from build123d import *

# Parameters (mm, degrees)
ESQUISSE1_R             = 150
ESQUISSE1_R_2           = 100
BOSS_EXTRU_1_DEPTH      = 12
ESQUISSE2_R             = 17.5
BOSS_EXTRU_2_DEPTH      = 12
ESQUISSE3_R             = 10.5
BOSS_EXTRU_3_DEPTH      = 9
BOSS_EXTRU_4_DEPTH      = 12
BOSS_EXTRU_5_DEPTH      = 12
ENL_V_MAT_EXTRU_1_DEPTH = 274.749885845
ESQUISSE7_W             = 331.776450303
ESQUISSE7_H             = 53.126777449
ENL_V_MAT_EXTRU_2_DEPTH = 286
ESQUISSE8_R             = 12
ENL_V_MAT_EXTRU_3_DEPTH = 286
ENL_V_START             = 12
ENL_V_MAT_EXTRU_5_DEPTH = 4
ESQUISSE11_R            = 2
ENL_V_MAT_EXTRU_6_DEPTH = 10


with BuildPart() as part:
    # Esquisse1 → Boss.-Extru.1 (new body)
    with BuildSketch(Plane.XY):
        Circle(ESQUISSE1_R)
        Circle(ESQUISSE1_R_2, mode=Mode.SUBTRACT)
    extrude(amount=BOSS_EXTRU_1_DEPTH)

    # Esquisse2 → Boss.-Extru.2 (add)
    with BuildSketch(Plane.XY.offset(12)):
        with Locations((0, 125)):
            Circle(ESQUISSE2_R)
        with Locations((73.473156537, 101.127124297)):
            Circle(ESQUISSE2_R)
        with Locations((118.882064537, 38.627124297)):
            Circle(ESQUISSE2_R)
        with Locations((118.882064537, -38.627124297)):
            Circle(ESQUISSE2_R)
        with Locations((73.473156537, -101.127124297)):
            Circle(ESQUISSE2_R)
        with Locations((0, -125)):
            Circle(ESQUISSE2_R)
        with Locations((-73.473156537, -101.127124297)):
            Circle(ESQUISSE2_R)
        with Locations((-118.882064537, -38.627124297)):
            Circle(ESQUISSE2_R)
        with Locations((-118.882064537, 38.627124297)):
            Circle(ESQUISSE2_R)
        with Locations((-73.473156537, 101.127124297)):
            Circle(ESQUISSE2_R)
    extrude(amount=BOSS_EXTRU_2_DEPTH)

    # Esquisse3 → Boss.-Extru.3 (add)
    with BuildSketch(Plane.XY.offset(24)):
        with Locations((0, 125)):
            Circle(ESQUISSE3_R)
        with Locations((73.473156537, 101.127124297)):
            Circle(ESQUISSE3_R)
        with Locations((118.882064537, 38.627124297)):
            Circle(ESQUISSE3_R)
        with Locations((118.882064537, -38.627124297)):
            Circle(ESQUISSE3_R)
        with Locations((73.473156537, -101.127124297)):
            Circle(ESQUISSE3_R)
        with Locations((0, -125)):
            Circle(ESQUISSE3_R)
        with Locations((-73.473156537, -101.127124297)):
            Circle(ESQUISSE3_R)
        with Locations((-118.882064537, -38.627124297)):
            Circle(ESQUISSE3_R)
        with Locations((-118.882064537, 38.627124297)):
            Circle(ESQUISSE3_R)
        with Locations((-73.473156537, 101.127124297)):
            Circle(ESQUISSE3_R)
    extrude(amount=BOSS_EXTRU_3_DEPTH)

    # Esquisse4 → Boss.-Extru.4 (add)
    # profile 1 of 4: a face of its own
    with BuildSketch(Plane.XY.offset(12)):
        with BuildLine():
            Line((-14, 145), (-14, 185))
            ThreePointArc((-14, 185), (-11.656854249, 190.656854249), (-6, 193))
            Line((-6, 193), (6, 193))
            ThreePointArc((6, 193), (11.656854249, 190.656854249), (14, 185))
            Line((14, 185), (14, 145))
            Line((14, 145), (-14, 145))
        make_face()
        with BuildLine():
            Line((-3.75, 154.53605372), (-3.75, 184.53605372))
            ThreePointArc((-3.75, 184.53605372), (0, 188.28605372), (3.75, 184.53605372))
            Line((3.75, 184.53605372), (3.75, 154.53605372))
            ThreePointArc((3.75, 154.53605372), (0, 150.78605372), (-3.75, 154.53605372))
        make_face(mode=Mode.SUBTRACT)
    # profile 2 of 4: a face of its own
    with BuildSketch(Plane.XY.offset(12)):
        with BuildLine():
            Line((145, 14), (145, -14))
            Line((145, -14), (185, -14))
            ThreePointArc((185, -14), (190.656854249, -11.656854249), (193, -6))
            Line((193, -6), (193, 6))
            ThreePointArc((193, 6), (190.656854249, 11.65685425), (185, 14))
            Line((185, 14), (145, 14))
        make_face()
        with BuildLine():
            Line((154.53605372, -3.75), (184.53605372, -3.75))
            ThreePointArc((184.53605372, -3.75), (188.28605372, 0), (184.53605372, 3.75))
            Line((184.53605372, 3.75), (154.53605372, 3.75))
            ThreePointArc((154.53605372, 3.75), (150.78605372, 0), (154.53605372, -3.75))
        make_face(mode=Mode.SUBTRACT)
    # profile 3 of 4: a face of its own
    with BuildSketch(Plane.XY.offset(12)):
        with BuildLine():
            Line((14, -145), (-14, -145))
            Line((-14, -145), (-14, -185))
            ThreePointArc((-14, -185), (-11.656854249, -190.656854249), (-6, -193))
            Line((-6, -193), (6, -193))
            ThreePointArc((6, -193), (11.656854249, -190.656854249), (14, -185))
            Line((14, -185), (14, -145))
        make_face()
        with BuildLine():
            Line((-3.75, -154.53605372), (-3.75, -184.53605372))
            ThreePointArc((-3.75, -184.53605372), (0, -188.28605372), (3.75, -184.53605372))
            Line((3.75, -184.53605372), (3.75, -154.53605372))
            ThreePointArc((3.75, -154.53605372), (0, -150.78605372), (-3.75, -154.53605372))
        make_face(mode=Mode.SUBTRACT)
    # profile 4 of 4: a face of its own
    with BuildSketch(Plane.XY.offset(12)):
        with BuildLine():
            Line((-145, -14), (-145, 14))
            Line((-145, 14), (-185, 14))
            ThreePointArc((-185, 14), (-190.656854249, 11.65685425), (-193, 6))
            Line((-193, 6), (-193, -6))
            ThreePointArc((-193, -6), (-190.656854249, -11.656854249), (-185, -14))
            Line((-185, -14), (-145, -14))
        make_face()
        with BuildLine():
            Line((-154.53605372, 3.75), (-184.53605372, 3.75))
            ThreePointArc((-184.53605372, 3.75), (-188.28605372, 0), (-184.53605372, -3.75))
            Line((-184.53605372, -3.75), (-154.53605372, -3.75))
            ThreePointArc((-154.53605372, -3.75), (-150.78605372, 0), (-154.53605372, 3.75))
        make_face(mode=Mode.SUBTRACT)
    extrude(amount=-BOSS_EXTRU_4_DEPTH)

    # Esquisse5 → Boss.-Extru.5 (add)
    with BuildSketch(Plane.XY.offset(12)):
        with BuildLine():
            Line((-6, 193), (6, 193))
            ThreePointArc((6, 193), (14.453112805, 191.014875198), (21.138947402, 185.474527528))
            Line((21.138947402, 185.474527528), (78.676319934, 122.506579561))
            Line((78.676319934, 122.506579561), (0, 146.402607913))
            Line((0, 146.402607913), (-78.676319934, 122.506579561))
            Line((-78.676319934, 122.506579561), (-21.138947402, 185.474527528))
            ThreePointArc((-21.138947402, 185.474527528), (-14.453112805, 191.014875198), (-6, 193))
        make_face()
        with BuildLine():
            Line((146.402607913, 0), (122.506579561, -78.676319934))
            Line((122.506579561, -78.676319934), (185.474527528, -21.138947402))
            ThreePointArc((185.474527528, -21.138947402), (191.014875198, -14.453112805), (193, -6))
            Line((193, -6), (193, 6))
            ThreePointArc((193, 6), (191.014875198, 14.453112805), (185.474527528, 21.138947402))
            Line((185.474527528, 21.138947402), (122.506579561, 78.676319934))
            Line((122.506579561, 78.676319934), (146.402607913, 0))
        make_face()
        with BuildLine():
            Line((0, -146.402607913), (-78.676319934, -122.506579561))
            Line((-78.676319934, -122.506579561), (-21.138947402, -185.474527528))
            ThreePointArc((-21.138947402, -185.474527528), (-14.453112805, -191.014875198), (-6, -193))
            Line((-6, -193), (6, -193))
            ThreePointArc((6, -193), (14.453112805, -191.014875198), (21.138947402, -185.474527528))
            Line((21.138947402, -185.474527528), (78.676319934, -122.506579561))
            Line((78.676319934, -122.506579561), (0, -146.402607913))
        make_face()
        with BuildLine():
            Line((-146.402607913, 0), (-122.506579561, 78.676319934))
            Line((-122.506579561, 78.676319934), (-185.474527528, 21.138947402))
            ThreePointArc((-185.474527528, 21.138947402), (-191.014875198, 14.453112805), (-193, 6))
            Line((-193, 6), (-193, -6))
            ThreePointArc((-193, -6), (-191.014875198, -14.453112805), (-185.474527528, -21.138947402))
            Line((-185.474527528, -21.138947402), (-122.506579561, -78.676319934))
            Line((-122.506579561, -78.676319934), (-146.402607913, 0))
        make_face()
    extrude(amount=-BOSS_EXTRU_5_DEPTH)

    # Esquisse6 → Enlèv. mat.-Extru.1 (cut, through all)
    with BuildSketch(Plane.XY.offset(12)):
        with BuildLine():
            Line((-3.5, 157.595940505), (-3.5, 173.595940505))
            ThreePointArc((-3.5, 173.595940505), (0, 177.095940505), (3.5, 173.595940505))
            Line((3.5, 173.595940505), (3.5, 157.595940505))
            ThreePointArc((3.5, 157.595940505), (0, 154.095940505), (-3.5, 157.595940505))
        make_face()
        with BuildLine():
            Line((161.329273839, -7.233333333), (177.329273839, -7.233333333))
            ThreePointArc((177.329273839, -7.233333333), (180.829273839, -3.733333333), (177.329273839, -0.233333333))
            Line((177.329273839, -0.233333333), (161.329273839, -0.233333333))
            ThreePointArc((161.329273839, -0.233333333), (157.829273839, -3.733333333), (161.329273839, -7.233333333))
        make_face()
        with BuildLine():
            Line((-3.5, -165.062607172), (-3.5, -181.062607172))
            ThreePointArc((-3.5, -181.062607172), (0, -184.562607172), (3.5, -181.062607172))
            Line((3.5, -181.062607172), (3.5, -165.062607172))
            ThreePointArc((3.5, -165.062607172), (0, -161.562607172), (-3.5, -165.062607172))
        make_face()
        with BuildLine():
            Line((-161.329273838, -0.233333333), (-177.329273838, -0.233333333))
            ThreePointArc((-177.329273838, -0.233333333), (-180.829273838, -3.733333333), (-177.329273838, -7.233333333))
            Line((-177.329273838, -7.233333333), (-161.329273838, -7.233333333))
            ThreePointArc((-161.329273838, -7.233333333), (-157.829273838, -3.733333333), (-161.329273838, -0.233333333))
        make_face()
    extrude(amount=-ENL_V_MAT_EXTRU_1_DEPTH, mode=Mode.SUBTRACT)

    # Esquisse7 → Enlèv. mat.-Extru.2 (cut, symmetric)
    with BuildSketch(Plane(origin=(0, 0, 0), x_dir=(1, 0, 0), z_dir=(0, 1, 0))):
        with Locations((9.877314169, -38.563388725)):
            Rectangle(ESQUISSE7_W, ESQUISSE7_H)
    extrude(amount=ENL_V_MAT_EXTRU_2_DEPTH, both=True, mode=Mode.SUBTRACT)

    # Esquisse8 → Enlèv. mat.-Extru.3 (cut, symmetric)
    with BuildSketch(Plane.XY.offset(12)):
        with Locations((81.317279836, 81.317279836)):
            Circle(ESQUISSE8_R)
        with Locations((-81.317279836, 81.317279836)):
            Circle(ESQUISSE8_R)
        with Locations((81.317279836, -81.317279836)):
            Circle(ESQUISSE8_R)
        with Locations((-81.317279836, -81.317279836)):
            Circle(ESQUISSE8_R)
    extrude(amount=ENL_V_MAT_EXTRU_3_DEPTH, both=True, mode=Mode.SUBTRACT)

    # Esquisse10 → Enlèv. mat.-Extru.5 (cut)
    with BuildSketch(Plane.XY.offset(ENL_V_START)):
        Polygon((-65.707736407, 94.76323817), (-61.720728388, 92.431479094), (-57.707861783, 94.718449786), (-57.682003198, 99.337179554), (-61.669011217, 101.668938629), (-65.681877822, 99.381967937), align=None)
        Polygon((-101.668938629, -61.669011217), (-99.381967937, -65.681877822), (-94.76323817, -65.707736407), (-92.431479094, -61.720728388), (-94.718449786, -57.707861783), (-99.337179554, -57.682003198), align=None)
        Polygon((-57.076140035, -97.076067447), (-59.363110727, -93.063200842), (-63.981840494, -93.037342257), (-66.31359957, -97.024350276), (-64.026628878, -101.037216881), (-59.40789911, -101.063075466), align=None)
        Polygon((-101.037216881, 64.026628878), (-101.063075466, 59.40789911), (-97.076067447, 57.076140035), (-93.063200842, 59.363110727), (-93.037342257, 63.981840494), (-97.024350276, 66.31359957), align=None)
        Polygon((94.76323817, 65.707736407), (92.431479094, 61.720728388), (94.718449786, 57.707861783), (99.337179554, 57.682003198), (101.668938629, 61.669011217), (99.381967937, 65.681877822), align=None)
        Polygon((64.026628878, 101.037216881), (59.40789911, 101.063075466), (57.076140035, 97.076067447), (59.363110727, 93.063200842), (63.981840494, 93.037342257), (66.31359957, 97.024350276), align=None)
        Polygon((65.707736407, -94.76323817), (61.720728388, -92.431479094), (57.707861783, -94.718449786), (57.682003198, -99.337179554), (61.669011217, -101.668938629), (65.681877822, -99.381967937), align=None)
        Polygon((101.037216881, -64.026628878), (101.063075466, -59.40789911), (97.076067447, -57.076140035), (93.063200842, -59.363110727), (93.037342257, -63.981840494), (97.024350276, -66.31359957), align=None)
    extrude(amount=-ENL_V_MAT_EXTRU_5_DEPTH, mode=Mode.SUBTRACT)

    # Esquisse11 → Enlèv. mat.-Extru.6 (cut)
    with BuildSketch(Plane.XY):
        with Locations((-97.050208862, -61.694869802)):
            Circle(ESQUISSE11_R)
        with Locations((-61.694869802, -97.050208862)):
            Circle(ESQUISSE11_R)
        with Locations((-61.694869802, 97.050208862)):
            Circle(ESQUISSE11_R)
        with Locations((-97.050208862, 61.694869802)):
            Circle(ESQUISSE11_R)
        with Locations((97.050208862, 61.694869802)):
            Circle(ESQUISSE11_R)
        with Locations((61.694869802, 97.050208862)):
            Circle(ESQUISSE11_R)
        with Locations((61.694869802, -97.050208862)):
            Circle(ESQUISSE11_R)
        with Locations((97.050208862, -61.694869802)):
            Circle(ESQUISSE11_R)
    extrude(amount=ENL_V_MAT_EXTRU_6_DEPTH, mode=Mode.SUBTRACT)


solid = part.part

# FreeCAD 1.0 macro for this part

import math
import FreeCAD as App
import Part
import Sketcher
from FreeCAD import Vector
Q = App.Units.Quantity

doc = App.newDocument("Part")
body = doc.addObject("PartDesign::Body", "Body")

# Sketch on XY plane
sketch1 = body.newObject("Sketcher::SketchObject", "Sketch")
sketch1.AttachmentSupport = (doc.getObject("XY_Plane"), [""])
sketch1.MapMode = "FlatFace"
sketch1.addGeometry([
    Part.Circle(Vector(0, 0, 0), Vector(0, 0, 1), 150),
    Part.Circle(Vector(0, 0, 0), Vector(0, 0, 1), 100),
], False)
sketch1.addConstraint([
    Sketcher.Constraint("Coincident", 0, 3, -1, 1),
    Sketcher.Constraint("Coincident", 1, 3, -1, 1),
    Sketcher.Constraint("Diameter", 0, Q("300 mm")),
    Sketcher.Constraint("Diameter", 1, Q("200 mm")),
])
pad1 = body.newObject("PartDesign::Pad", "Pad")
pad1.Profile = sketch1
pad1.Length = 12

# Sketch on XY plane
sketch2 = body.newObject("Sketcher::SketchObject", "Sketch001")
sketch2.AttachmentSupport = (doc.getObject("XY_Plane"), [""])
sketch2.MapMode = "FlatFace"
sketch2.AttachmentOffset = App.Placement(Vector(0, 0, 12), App.Rotation())
sketch2.addGeometry([
    Part.Circle(Vector(0, 125, 0), Vector(0, 0, 1), 17.5),  # 0
    Part.Circle(Vector(73.473157, 101.127124, 0), Vector(0, 0, 1), 17.5),  # 1
    Part.Circle(Vector(118.882065, 38.627124, 0), Vector(0, 0, 1), 17.5),  # 2
    Part.Circle(Vector(118.882065, -38.627124, 0), Vector(0, 0, 1), 17.5),  # 3
    Part.Circle(Vector(73.473157, -101.127124, 0), Vector(0, 0, 1), 17.5),  # 4
    Part.Circle(Vector(0, -125, 0), Vector(0, 0, 1), 17.5),  # 5
    Part.Circle(Vector(-73.473157, -101.127124, 0), Vector(0, 0, 1), 17.5),  # 6
    Part.Circle(Vector(-118.882065, -38.627124, 0), Vector(0, 0, 1), 17.5),  # 7
    Part.Circle(Vector(-118.882065, 38.627124, 0), Vector(0, 0, 1), 17.5),  # 8
    Part.Circle(Vector(-73.473157, 101.127124, 0), Vector(0, 0, 1), 17.5),  # 9
], False)
sketch2.addConstraint([
    Sketcher.Constraint("Equal", 0, 1),
    Sketcher.Constraint("Equal", 1, 2),
    Sketcher.Constraint("Equal", 2, 3),
    Sketcher.Constraint("Equal", 3, 4),
    Sketcher.Constraint("Equal", 4, 5),
    Sketcher.Constraint("Equal", 5, 6),
    Sketcher.Constraint("Equal", 6, 7),
    Sketcher.Constraint("Equal", 7, 8),
    Sketcher.Constraint("Equal", 8, 9),
    Sketcher.Constraint("Symmetric", 0, 3, 5, 3, -1, 1),
    Sketcher.Constraint("Symmetric", 1, 3, 6, 3, -1, 1),
    Sketcher.Constraint("Symmetric", 2, 3, 7, 3, -1, 1),
    Sketcher.Constraint("Symmetric", 3, 3, 8, 3, -1, 1),
    Sketcher.Constraint("Symmetric", 4, 3, 9, 3, -1, 1),
    Sketcher.Constraint("Symmetric", 4, 3, 6, 3, -2),
    Sketcher.Constraint("Symmetric", 3, 3, 7, 3, -2),
    Sketcher.Constraint("PointOnObject", 0, 3, -2),
    Sketcher.Constraint("Diameter", 0, Q("35 mm")),
    Sketcher.Constraint("DistanceY", -1, 1, 0, 3, Q("125 mm")),
    Sketcher.Constraint("DistanceY", 2, 3, 1, 3, Q("62.5 mm")),
    Sketcher.Constraint("DistanceX", 1, 3, 2, 3, Q("45.408908 mm")),
    Sketcher.Constraint("DistanceY", 3, 3, 2, 3, Q("77.254249 mm")),
    Sketcher.Constraint("DistanceX", 6, 3, 3, 3, Q("192.355221 mm")),
])
pad2 = body.newObject("PartDesign::Pad", "Pad001")
pad2.Profile = sketch2
pad2.Length = 12

# Sketch on XY plane
sketch3 = body.newObject("Sketcher::SketchObject", "Sketch002")
sketch3.AttachmentSupport = (doc.getObject("XY_Plane"), [""])
sketch3.MapMode = "FlatFace"
sketch3.AttachmentOffset = App.Placement(Vector(0, 0, 24), App.Rotation())
sketch3.addGeometry([
    Part.Circle(Vector(0, 125, 0), Vector(0, 0, 1), 10.5),  # 0
    Part.Circle(Vector(73.473157, 101.127124, 0), Vector(0, 0, 1), 10.5),  # 1
    Part.Circle(Vector(118.882065, 38.627124, 0), Vector(0, 0, 1), 10.5),  # 2
    Part.Circle(Vector(118.882065, -38.627124, 0), Vector(0, 0, 1), 10.5),  # 3
    Part.Circle(Vector(73.473157, -101.127124, 0), Vector(0, 0, 1), 10.5),  # 4
    Part.Circle(Vector(0, -125, 0), Vector(0, 0, 1), 10.5),  # 5
    Part.Circle(Vector(-73.473157, -101.127124, 0), Vector(0, 0, 1), 10.5),  # 6
    Part.Circle(Vector(-118.882065, -38.627124, 0), Vector(0, 0, 1), 10.5),  # 7
    Part.Circle(Vector(-118.882065, 38.627124, 0), Vector(0, 0, 1), 10.5),  # 8
    Part.Circle(Vector(-73.473157, 101.127124, 0), Vector(0, 0, 1), 10.5),  # 9
], False)
sketch3.addConstraint([
    Sketcher.Constraint("Equal", 0, 1),
    Sketcher.Constraint("Equal", 1, 2),
    Sketcher.Constraint("Equal", 2, 3),
    Sketcher.Constraint("Equal", 3, 4),
    Sketcher.Constraint("Equal", 4, 5),
    Sketcher.Constraint("Equal", 5, 6),
    Sketcher.Constraint("Equal", 6, 7),
    Sketcher.Constraint("Equal", 7, 8),
    Sketcher.Constraint("Equal", 8, 9),
    Sketcher.Constraint("Symmetric", 0, 3, 5, 3, -1, 1),
    Sketcher.Constraint("Symmetric", 1, 3, 6, 3, -1, 1),
    Sketcher.Constraint("Symmetric", 2, 3, 7, 3, -1, 1),
    Sketcher.Constraint("Symmetric", 3, 3, 8, 3, -1, 1),
    Sketcher.Constraint("Symmetric", 4, 3, 9, 3, -1, 1),
    Sketcher.Constraint("Symmetric", 4, 3, 6, 3, -2),
    Sketcher.Constraint("Symmetric", 3, 3, 7, 3, -2),
    Sketcher.Constraint("PointOnObject", 0, 3, -2),
    Sketcher.Constraint("Diameter", 0, Q("21 mm")),
    Sketcher.Constraint("DistanceY", -1, 1, 0, 3, Q("125 mm")),
    Sketcher.Constraint("DistanceY", 2, 3, 1, 3, Q("62.5 mm")),
    Sketcher.Constraint("DistanceX", 1, 3, 2, 3, Q("45.408908 mm")),
    Sketcher.Constraint("DistanceY", 3, 3, 2, 3, Q("77.254249 mm")),
    Sketcher.Constraint("DistanceX", 6, 3, 3, 3, Q("192.355221 mm")),
])
pad3 = body.newObject("PartDesign::Pad", "Pad002")
pad3.Profile = sketch3
pad3.Length = 9

# Sketch on XY plane
sketch4 = body.newObject("Sketcher::SketchObject", "Sketch003")
sketch4.AttachmentSupport = (doc.getObject("XY_Plane"), [""])
sketch4.MapMode = "FlatFace"
sketch4.AttachmentOffset = App.Placement(Vector(0, 0, 12), App.Rotation())
sketch4.addGeometry([
    Part.LineSegment(Vector(-14, 185, 0), Vector(-14, 145, 0)),  # 0
    Part.LineSegment(Vector(-14, 145, 0), Vector(14, 145, 0)),  # 1
    Part.LineSegment(Vector(14, 145, 0), Vector(14, 185, 0)),  # 2
    Part.ArcOfCircle(Part.Circle(Vector(6, 185, 0), Vector(0, 0, 1), 8), math.radians(0), math.radians(90)),  # 3
    Part.LineSegment(Vector(6, 193, 0), Vector(-6, 193, 0)),  # 4
    Part.ArcOfCircle(Part.Circle(Vector(-6, 185, 0), Vector(0, 0, 1), 8), math.radians(90), math.radians(180)),  # 5
    Part.LineSegment(Vector(-3.75, 154.536054, 0), Vector(-3.75, 184.536054, 0)),  # 6
    Part.ArcOfCircle(Part.Circle(Vector(0, 184.536054, 0), Vector(0, 0, 1), 3.75), math.radians(0), math.radians(180)),  # 7
    Part.LineSegment(Vector(3.75, 184.536054, 0), Vector(3.75, 154.536054, 0)),  # 8
    Part.ArcOfCircle(Part.Circle(Vector(0, 154.536054, 0), Vector(0, 0, 1), 3.75), math.radians(180), math.radians(360)),  # 9
    Part.LineSegment(Vector(145, 14, 0), Vector(145, -14, 0)),  # 10
    Part.LineSegment(Vector(145, -14, 0), Vector(185, -14, 0)),  # 11
    Part.ArcOfCircle(Part.Circle(Vector(185, -6, 0), Vector(0, 0, 1), 8), math.radians(-90), math.radians(0)),  # 12
    Part.LineSegment(Vector(193, -6, 0), Vector(193, 6, 0)),  # 13
    Part.ArcOfCircle(Part.Circle(Vector(185, 6, 0), Vector(0, 0, 1), 8), math.radians(0), math.radians(90)),  # 14
    Part.LineSegment(Vector(185, 14, 0), Vector(145, 14, 0)),  # 15
    Part.LineSegment(Vector(184.536054, -3.75, 0), Vector(154.536054, -3.75, 0)),  # 16
    Part.ArcOfCircle(Part.Circle(Vector(154.536054, 0, 0), Vector(0, 0, 1), 3.75), math.radians(90), math.radians(270)),  # 17
    Part.LineSegment(Vector(154.536054, 3.75, 0), Vector(184.536054, 3.75, 0)),  # 18
    Part.ArcOfCircle(Part.Circle(Vector(184.536054, 0, 0), Vector(0, 0, 1), 3.75), math.radians(-90), math.radians(90)),  # 19
    Part.LineSegment(Vector(14, -145, 0), Vector(-14, -145, 0)),  # 20
    Part.LineSegment(Vector(-14, -145, 0), Vector(-14, -185, 0)),  # 21
    Part.ArcOfCircle(Part.Circle(Vector(-6, -185, 0), Vector(0, 0, 1), 8), math.radians(-180), math.radians(-90)),  # 22
    Part.LineSegment(Vector(-6, -193, 0), Vector(6, -193, 0)),  # 23
    Part.ArcOfCircle(Part.Circle(Vector(6, -185, 0), Vector(0, 0, 1), 8), math.radians(-90), math.radians(0)),  # 24
    Part.LineSegment(Vector(14, -185, 0), Vector(14, -145, 0)),  # 25
    Part.LineSegment(Vector(-3.75, -184.536054, 0), Vector(-3.75, -154.536054, 0)),  # 26
    Part.ArcOfCircle(Part.Circle(Vector(0, -154.536054, 0), Vector(0, 0, 1), 3.75), math.radians(0), math.radians(180)),  # 27
    Part.LineSegment(Vector(3.75, -154.536054, 0), Vector(3.75, -184.536054, 0)),  # 28
    Part.ArcOfCircle(Part.Circle(Vector(0, -184.536054, 0), Vector(0, 0, 1), 3.75), math.radians(180), math.radians(360)),  # 29
    Part.LineSegment(Vector(-145, -14, 0), Vector(-145, 14, 0)),  # 30
    Part.LineSegment(Vector(-145, 14, 0), Vector(-185, 14, 0)),  # 31
    Part.ArcOfCircle(Part.Circle(Vector(-185, 6, 0), Vector(0, 0, 1), 8), math.radians(90), math.radians(180)),  # 32
    Part.LineSegment(Vector(-193, 6, 0), Vector(-193, -6, 0)),  # 33
    Part.ArcOfCircle(Part.Circle(Vector(-185, -6, 0), Vector(0, 0, 1), 8), math.radians(-180), math.radians(-90)),  # 34
    Part.LineSegment(Vector(-185, -14, 0), Vector(-145, -14, 0)),  # 35
    Part.LineSegment(Vector(-184.536054, 3.75, 0), Vector(-154.536054, 3.75, 0)),  # 36
    Part.ArcOfCircle(Part.Circle(Vector(-154.536054, 0, 0), Vector(0, 0, 1), 3.75), math.radians(-90), math.radians(90)),  # 37
    Part.LineSegment(Vector(-154.536054, -3.75, 0), Vector(-184.536054, -3.75, 0)),  # 38
    Part.ArcOfCircle(Part.Circle(Vector(-184.536054, 0, 0), Vector(0, 0, 1), 3.75), math.radians(90), math.radians(270)),  # 39
], False)
sketch4.addConstraint([
    Sketcher.Constraint("Coincident", 0, 2, 1, 1),
    Sketcher.Constraint("Coincident", 1, 2, 2, 1),
    Sketcher.Constraint("Tangent", 2, 2, 3, 1),
    Sketcher.Constraint("Tangent", 3, 2, 4, 1),
    Sketcher.Constraint("Tangent", 4, 2, 5, 1),
    Sketcher.Constraint("Tangent", 5, 2, 0, 1),
    Sketcher.Constraint("Tangent", 6, 2, 7, 2),
    Sketcher.Constraint("Tangent", 7, 1, 8, 1),
    Sketcher.Constraint("Tangent", 8, 2, 9, 2),
    Sketcher.Constraint("Tangent", 9, 1, 6, 1),
    Sketcher.Constraint("Coincident", 10, 2, 11, 1),
    Sketcher.Constraint("Tangent", 11, 2, 12, 1),
    Sketcher.Constraint("Tangent", 12, 2, 13, 1),
    Sketcher.Constraint("Tangent", 13, 2, 14, 1),
    Sketcher.Constraint("Tangent", 14, 2, 15, 1),
    Sketcher.Constraint("Coincident", 15, 2, 10, 1),
    Sketcher.Constraint("Tangent", 16, 2, 17, 2),
    Sketcher.Constraint("Tangent", 17, 1, 18, 1),
    Sketcher.Constraint("Tangent", 18, 2, 19, 2),
    Sketcher.Constraint("Tangent", 19, 1, 16, 1),
    Sketcher.Constraint("Coincident", 20, 2, 21, 1),
    Sketcher.Constraint("Tangent", 21, 2, 22, 1),
    Sketcher.Constraint("Tangent", 22, 2, 23, 1),
    Sketcher.Constraint("Tangent", 23, 2, 24, 1),
    Sketcher.Constraint("Tangent", 24, 2, 25, 1),
    Sketcher.Constraint("Coincident", 25, 2, 20, 1),
    Sketcher.Constraint("Tangent", 26, 2, 27, 2),
    Sketcher.Constraint("Tangent", 27, 1, 28, 1),
    Sketcher.Constraint("Tangent", 28, 2, 29, 2),
    Sketcher.Constraint("Tangent", 29, 1, 26, 1),
    Sketcher.Constraint("Coincident", 30, 2, 31, 1),
    Sketcher.Constraint("Tangent", 31, 2, 32, 1),
    Sketcher.Constraint("Tangent", 32, 2, 33, 1),
    Sketcher.Constraint("Tangent", 33, 2, 34, 1),
    Sketcher.Constraint("Tangent", 34, 2, 35, 1),
    Sketcher.Constraint("Coincident", 35, 2, 30, 1),
    Sketcher.Constraint("Tangent", 36, 2, 37, 2),
    Sketcher.Constraint("Tangent", 37, 1, 38, 1),
    Sketcher.Constraint("Tangent", 38, 2, 39, 2),
    Sketcher.Constraint("Tangent", 39, 1, 36, 1),
    Sketcher.Constraint("Vertical", 0),
    Sketcher.Constraint("Horizontal", 1),
    Sketcher.Constraint("Vertical", 2),
    Sketcher.Constraint("Horizontal", 4),
    Sketcher.Constraint("Vertical", 6),
    Sketcher.Constraint("Vertical", 8),
    Sketcher.Constraint("Vertical", 10),
    Sketcher.Constraint("Horizontal", 11),
    Sketcher.Constraint("Vertical", 13),
    Sketcher.Constraint("Horizontal", 15),
    Sketcher.Constraint("Horizontal", 16),
    Sketcher.Constraint("Horizontal", 18),
    Sketcher.Constraint("Horizontal", 20),
    Sketcher.Constraint("Vertical", 21),
    Sketcher.Constraint("Horizontal", 23),
    Sketcher.Constraint("Vertical", 25),
    Sketcher.Constraint("Vertical", 26),
    Sketcher.Constraint("Vertical", 28),
    Sketcher.Constraint("Vertical", 30),
    Sketcher.Constraint("Horizontal", 31),
    Sketcher.Constraint("Vertical", 33),
    Sketcher.Constraint("Horizontal", 35),
    Sketcher.Constraint("Horizontal", 36),
    Sketcher.Constraint("Horizontal", 38),
    Sketcher.Constraint("Equal", 3, 5),
    Sketcher.Constraint("Equal", 5, 12),
    Sketcher.Constraint("Equal", 12, 14),
    Sketcher.Constraint("Equal", 9, 17),
    Sketcher.Constraint("Equal", 14, 22),
    Sketcher.Constraint("Equal", 22, 24),
    Sketcher.Constraint("Equal", 19, 27),
    Sketcher.Constraint("Equal", 24, 32),
    Sketcher.Constraint("Equal", 32, 34),
    Sketcher.Constraint("Equal", 29, 37),
    Sketcher.Constraint("Symmetric", 3, 3, 22, 3, -1, 1),
    Sketcher.Constraint("Symmetric", 9, 3, 27, 3, -1, 1),
    Sketcher.Constraint("Symmetric", 12, 3, 32, 3, -1, 1),
    Sketcher.Constraint("Symmetric", 17, 3, 37, 3, -1, 1),
    Sketcher.Constraint("Symmetric", 0, 2, 25, 2, -1, 1),
    Sketcher.Constraint("Symmetric", 15, 2, 35, 2, -1, 1),
    Sketcher.Constraint("Symmetric", 19, 3, 39, 3, -2),
    Sketcher.Constraint("Symmetric", 7, 3, 29, 3, -1),
    Sketcher.Constraint("Horizontal", 14, 3, 32, 3),
    Sketcher.Constraint("Vertical", 5, 3, 22, 3),
    Sketcher.Constraint("Equal", 35, 0),
    Sketcher.Constraint("Equal", 38, 6),
    Sketcher.Constraint("Equal", 20, 10),
    Sketcher.Constraint("Radius", 3, Q("8 mm")),
    Sketcher.Constraint("DistanceX", 1, 1, 1, 2, Q("28 mm")),
    Sketcher.Constraint("DistanceX", 11, 1, 11, 2, Q("40 mm")),
    Sketcher.Constraint("DistanceX", 16, 2, 16, 1, Q("30 mm")),
    Sketcher.Constraint("Radius", 7, Q("3.75 mm")),
    Sketcher.Constraint("DistanceY", -1, 1, 3, 3, Q("185 mm")),
    Sketcher.Constraint("DistanceX", -1, 1, 12, 3, Q("185 mm")),
    Sketcher.Constraint("DistanceY", -1, 1, 7, 3, Q("184.536054 mm")),
    Sketcher.Constraint("DistanceX", -1, 1, 17, 3, Q("154.536054 mm")),
])
pad4 = body.newObject("PartDesign::Pad", "Pad003")
pad4.Profile = sketch4
pad4.Length = 12
pad4.Reversed = True

# Sketch on XY plane
sketch5 = body.newObject("Sketcher::SketchObject", "Sketch004")
sketch5.AttachmentSupport = (doc.getObject("XY_Plane"), [""])
sketch5.MapMode = "FlatFace"
sketch5.AttachmentOffset = App.Placement(Vector(0, 0, 12), App.Rotation())
sketch5.addGeometry([
    Part.LineSegment(Vector(6, 193, 0), Vector(-6, 193, 0)),  # 0
    Part.ArcOfCircle(Part.Circle(Vector(-6, 174.009799, 0), Vector(0, 0, 1), 18.990201), math.radians(90), math.radians(142.863345)),  # 1
    Part.LineSegment(Vector(-21.138947, 185.474528, 0), Vector(-78.67632, 122.50658, 0)),  # 2
    Part.LineSegment(Vector(-78.67632, 122.50658, 0), Vector(0, 146.402608, 0)),  # 3
    Part.LineSegment(Vector(0, 146.402608, 0), Vector(78.67632, 122.50658, 0)),  # 4
    Part.LineSegment(Vector(78.67632, 122.50658, 0), Vector(21.138947, 185.474528, 0)),  # 5
    Part.ArcOfCircle(Part.Circle(Vector(6, 174.009799, 0), Vector(0, 0, 1), 18.990201), math.radians(37.136655), math.radians(90)),  # 6
    Part.LineSegment(Vector(146.402608, 0, 0), Vector(122.50658, -78.67632, 0)),  # 7
    Part.LineSegment(Vector(122.50658, -78.67632, 0), Vector(185.474528, -21.138947, 0)),  # 8
    Part.ArcOfCircle(Part.Circle(Vector(174.009799, -6, 0), Vector(0, 0, 1), 18.990201), math.radians(-52.863345), math.radians(0)),  # 9
    Part.LineSegment(Vector(193, -6, 0), Vector(193, 6, 0)),  # 10
    Part.ArcOfCircle(Part.Circle(Vector(174.009799, 6, 0), Vector(0, 0, 1), 18.990201), math.radians(0), math.radians(52.863345)),  # 11
    Part.LineSegment(Vector(185.474528, 21.138947, 0), Vector(122.50658, 78.67632, 0)),  # 12
    Part.LineSegment(Vector(122.50658, 78.67632, 0), Vector(146.402608, 0, 0)),  # 13
    Part.LineSegment(Vector(0, -146.402608, 0), Vector(-78.67632, -122.50658, 0)),  # 14
    Part.LineSegment(Vector(-78.67632, -122.50658, 0), Vector(-21.138947, -185.474528, 0)),  # 15
    Part.ArcOfCircle(Part.Circle(Vector(-6, -174.009799, 0), Vector(0, 0, 1), 18.990201), math.radians(-142.863345), math.radians(-90)),  # 16
    Part.LineSegment(Vector(-6, -193, 0), Vector(6, -193, 0)),  # 17
    Part.ArcOfCircle(Part.Circle(Vector(6, -174.009799, 0), Vector(0, 0, 1), 18.990201), math.radians(-90), math.radians(-37.136655)),  # 18
    Part.LineSegment(Vector(21.138947, -185.474528, 0), Vector(78.67632, -122.50658, 0)),  # 19
    Part.LineSegment(Vector(78.67632, -122.50658, 0), Vector(0, -146.402608, 0)),  # 20
    Part.LineSegment(Vector(-146.402608, 0, 0), Vector(-122.50658, 78.67632, 0)),  # 21
    Part.LineSegment(Vector(-122.50658, 78.67632, 0), Vector(-185.474528, 21.138947, 0)),  # 22
    Part.ArcOfCircle(Part.Circle(Vector(-174.009799, 6, 0), Vector(0, 0, 1), 18.990201), math.radians(127.136655), math.radians(180)),  # 23
    Part.LineSegment(Vector(-193, 6, 0), Vector(-193, -6, 0)),  # 24
    Part.ArcOfCircle(Part.Circle(Vector(-174.009799, -6, 0), Vector(0, 0, 1), 18.990201), math.radians(-180), math.radians(-127.136655)),  # 25
    Part.LineSegment(Vector(-185.474528, -21.138947, 0), Vector(-122.50658, -78.67632, 0)),  # 26
    Part.LineSegment(Vector(-122.50658, -78.67632, 0), Vector(-146.402608, 0, 0)),  # 27
], False)
sketch5.addConstraint([
    Sketcher.Constraint("Tangent", 0, 2, 1, 1),
    Sketcher.Constraint("Coincident", 1, 2, 2, 1),
    Sketcher.Constraint("Coincident", 2, 2, 3, 1),
    Sketcher.Constraint("Coincident", 3, 2, 4, 1),
    Sketcher.Constraint("Coincident", 4, 2, 5, 1),
    Sketcher.Constraint("Coincident", 5, 2, 6, 1),
    Sketcher.Constraint("Tangent", 6, 2, 0, 1),
    Sketcher.Constraint("Coincident", 7, 2, 8, 1),
    Sketcher.Constraint("Coincident", 8, 2, 9, 1),
    Sketcher.Constraint("Tangent", 9, 2, 10, 1),
    Sketcher.Constraint("Tangent", 10, 2, 11, 1),
    Sketcher.Constraint("Coincident", 11, 2, 12, 1),
    Sketcher.Constraint("Coincident", 12, 2, 13, 1),
    Sketcher.Constraint("Coincident", 13, 2, 7, 1),
    Sketcher.Constraint("Coincident", 14, 2, 15, 1),
    Sketcher.Constraint("Coincident", 15, 2, 16, 1),
    Sketcher.Constraint("Tangent", 16, 2, 17, 1),
    Sketcher.Constraint("Tangent", 17, 2, 18, 1),
    Sketcher.Constraint("Coincident", 18, 2, 19, 1),
    Sketcher.Constraint("Coincident", 19, 2, 20, 1),
    Sketcher.Constraint("Coincident", 20, 2, 14, 1),
    Sketcher.Constraint("Coincident", 21, 2, 22, 1),
    Sketcher.Constraint("Coincident", 22, 2, 23, 1),
    Sketcher.Constraint("Tangent", 23, 2, 24, 1),
    Sketcher.Constraint("Tangent", 24, 2, 25, 1),
    Sketcher.Constraint("Coincident", 25, 2, 26, 1),
    Sketcher.Constraint("Coincident", 26, 2, 27, 1),
    Sketcher.Constraint("Coincident", 27, 2, 21, 1),
    Sketcher.Constraint("Horizontal", 0),
    Sketcher.Constraint("Vertical", 10),
    Sketcher.Constraint("Horizontal", 17),
    Sketcher.Constraint("Vertical", 24),
    Sketcher.Constraint("Equal", 1, 6),
    Sketcher.Constraint("Equal", 6, 9),
    Sketcher.Constraint("Equal", 9, 11),
    Sketcher.Constraint("Equal", 11, 16),
    Sketcher.Constraint("Equal", 16, 18),
    Sketcher.Constraint("Equal", 18, 23),
    Sketcher.Constraint("Equal", 23, 25),
    Sketcher.Constraint("Symmetric", 6, 3, 16, 3, -1, 1),
    Sketcher.Constraint("Symmetric", 9, 3, 23, 3, -1, 1),
    Sketcher.Constraint("Symmetric", 4, 2, 14, 2, -1, 1),
    Sketcher.Constraint("Symmetric", 1, 2, 18, 2, -1, 1),
    Sketcher.Constraint("Symmetric", 2, 2, 19, 2, -1, 1),
    Sketcher.Constraint("Symmetric", 3, 2, 20, 2, -1, 1),
    Sketcher.Constraint("Symmetric", 7, 2, 21, 2, -1, 1),
    Sketcher.Constraint("Symmetric", 11, 2, 25, 2, -1, 1),
    Sketcher.Constraint("Symmetric", 12, 2, 26, 2, -1, 1),
    Sketcher.Constraint("Symmetric", 13, 2, 27, 2, -1, 1),
    Sketcher.Constraint("Symmetric", 2, 2, 4, 2, -2),
    Sketcher.Constraint("Symmetric", 1, 2, 5, 2, -2),
    Sketcher.Constraint("Symmetric", 12, 2, 21, 2, -2),
    Sketcher.Constraint("Symmetric", 11, 2, 22, 2, -2),
    Sketcher.Constraint("PointOnObject", 3, 2, -2),
    Sketcher.Constraint("PointOnObject", 13, 2, -1),
    Sketcher.Constraint("Perpendicular", 4, 7),
    Sketcher.Constraint("Perpendicular", 5, 8),
    Sketcher.Constraint("Perpendicular", 2, 12),
    Sketcher.Constraint("Perpendicular", 8, 15),
    Sketcher.Constraint("Equal", 17, 10),
    Sketcher.Constraint("Equal", 4, 7),
    Sketcher.Constraint("Equal", 5, 8),
    Sketcher.Constraint("DistanceX", 0, 2, 0, 1, Q("12 mm")),
    Sketcher.Constraint("DistanceY", -1, 1, 0, 2, Q("193 mm")),
    Sketcher.Constraint("DistanceX", -1, 1, 9, 2, Q("193 mm")),
    Sketcher.Constraint("Radius", 1, Q("18.990201 mm")),
    Sketcher.Constraint("Distance", 3, Q("82.2252 mm")),
    Sketcher.Constraint("DistanceY", 7, 2, 4, 2, Q("201.182899 mm")),
    Sketcher.Constraint("Distance", 2, Q("85.29661 mm")),
    Sketcher.Constraint("DistanceX", 2, 2, -1, 1, Q("78.67632 mm")),
])
pad5 = body.newObject("PartDesign::Pad", "Pad004")
pad5.Profile = sketch5
pad5.Length = 12
pad5.Reversed = True

# Sketch on XY plane
sketch6 = body.newObject("Sketcher::SketchObject", "Sketch005")
sketch6.AttachmentSupport = (doc.getObject("XY_Plane"), [""])
sketch6.MapMode = "FlatFace"
sketch6.AttachmentOffset = App.Placement(Vector(0, 0, 12), App.Rotation())
sketch6.addGeometry([
    Part.LineSegment(Vector(-3.5, 173.595941, 0), Vector(-3.5, 157.595941, 0)),  # 0
    Part.ArcOfCircle(Part.Circle(Vector(0, 157.595941, 0), Vector(0, 0, 1), 3.5), math.radians(180), math.radians(360)),  # 1
    Part.LineSegment(Vector(3.5, 157.595941, 0), Vector(3.5, 173.595941, 0)),  # 2
    Part.ArcOfCircle(Part.Circle(Vector(0, 173.595941, 0), Vector(0, 0, 1), 3.5), math.radians(0), math.radians(180)),  # 3
    Part.LineSegment(Vector(161.329274, -7.233333, 0), Vector(177.329274, -7.233333, 0)),  # 4
    Part.ArcOfCircle(Part.Circle(Vector(177.329274, -3.733333, 0), Vector(0, 0, 1), 3.5), math.radians(-90), math.radians(90)),  # 5
    Part.LineSegment(Vector(177.329274, -0.233333, 0), Vector(161.329274, -0.233333, 0)),  # 6
    Part.ArcOfCircle(Part.Circle(Vector(161.329274, -3.733333, 0), Vector(0, 0, 1), 3.5), math.radians(90), math.radians(270)),  # 7
    Part.LineSegment(Vector(-3.5, -165.062607, 0), Vector(-3.5, -181.062607, 0)),  # 8
    Part.ArcOfCircle(Part.Circle(Vector(0, -181.062607, 0), Vector(0, 0, 1), 3.5), math.radians(180), math.radians(360)),  # 9
    Part.LineSegment(Vector(3.5, -181.062607, 0), Vector(3.5, -165.062607, 0)),  # 10
    Part.ArcOfCircle(Part.Circle(Vector(0, -165.062607, 0), Vector(0, 0, 1), 3.5), math.radians(0), math.radians(180)),  # 11
    Part.LineSegment(Vector(-161.329274, -0.233333, 0), Vector(-177.329274, -0.233333, 0)),  # 12
    Part.ArcOfCircle(Part.Circle(Vector(-177.329274, -3.733333, 0), Vector(0, 0, 1), 3.5), math.radians(90), math.radians(270)),  # 13
    Part.LineSegment(Vector(-177.329274, -7.233333, 0), Vector(-161.329274, -7.233333, 0)),  # 14
    Part.ArcOfCircle(Part.Circle(Vector(-161.329274, -3.733333, 0), Vector(0, 0, 1), 3.5), math.radians(-90), math.radians(90)),  # 15
], False)
sketch6.addConstraint([
    Sketcher.Constraint("Tangent", 0, 2, 1, 1),
    Sketcher.Constraint("Tangent", 1, 2, 2, 1),
    Sketcher.Constraint("Tangent", 2, 2, 3, 1),
    Sketcher.Constraint("Tangent", 3, 2, 0, 1),
    Sketcher.Constraint("Tangent", 4, 2, 5, 1),
    Sketcher.Constraint("Tangent", 5, 2, 6, 1),
    Sketcher.Constraint("Tangent", 6, 2, 7, 1),
    Sketcher.Constraint("Tangent", 7, 2, 4, 1),
    Sketcher.Constraint("Tangent", 8, 2, 9, 1),
    Sketcher.Constraint("Tangent", 9, 2, 10, 1),
    Sketcher.Constraint("Tangent", 10, 2, 11, 1),
    Sketcher.Constraint("Tangent", 11, 2, 8, 1),
    Sketcher.Constraint("Tangent", 12, 2, 13, 1),
    Sketcher.Constraint("Tangent", 13, 2, 14, 1),
    Sketcher.Constraint("Tangent", 14, 2, 15, 1),
    Sketcher.Constraint("Tangent", 15, 2, 12, 1),
    Sketcher.Constraint("Vertical", 0),
    Sketcher.Constraint("Vertical", 2),
    Sketcher.Constraint("Horizontal", 4),
    Sketcher.Constraint("Horizontal", 6),
    Sketcher.Constraint("Vertical", 8),
    Sketcher.Constraint("Vertical", 10),
    Sketcher.Constraint("Horizontal", 12),
    Sketcher.Constraint("Horizontal", 14),
    Sketcher.Constraint("Equal", 3, 5),
    Sketcher.Constraint("Equal", 7, 9),
    Sketcher.Constraint("Equal", 11, 13),
    Sketcher.Constraint("Symmetric", 5, 3, 13, 3, -2),
    Sketcher.Constraint("PointOnObject", 1, 3, -2),
    Sketcher.Constraint("PointOnObject", 9, 3, -2),
    Sketcher.Constraint("Equal", 6, 12),
    Sketcher.Constraint("Equal", 14, 0),
    Sketcher.Constraint("Equal", 2, 8),
    Sketcher.Constraint("Radius", 1, Q("3.5 mm")),
    Sketcher.Constraint("DistanceX", 4, 1, 4, 2, Q("16 mm")),
    Sketcher.Constraint("DistanceY", -1, 1, 1, 3, Q("157.595941 mm")),
    Sketcher.Constraint("DistanceX", -1, 1, 5, 3, Q("177.329274 mm")),
    Sketcher.Constraint("DistanceY", 5, 3, -1, 1, Q("3.733333 mm")),
    Sketcher.Constraint("DistanceY", 9, 3, -1, 1, Q("181.062607 mm")),
])
pocket1 = body.newObject("PartDesign::Pocket", "Pocket")
pocket1.Profile = sketch6
pocket1.Type = "ThroughAll"

# Sketch on XZ plane
sketch7 = body.newObject("Sketcher::SketchObject", "Sketch006")
sketch7.AttachmentSupport = (doc.getObject("XZ_Plane"), [""])
sketch7.MapMode = "FlatFace"
sketch7.addGeometry([
    Part.LineSegment(Vector(-156.010911, 12, 0), Vector(-156.010911, 65.126777, 0)),
    Part.LineSegment(Vector(-156.010911, 65.126777, 0), Vector(175.765539, 65.126777, 0)),
    Part.LineSegment(Vector(175.765539, 65.126777, 0), Vector(175.765539, 12, 0)),
    Part.LineSegment(Vector(175.765539, 12, 0), Vector(-156.010911, 12, 0)),
], False)
sketch7.addConstraint([
    Sketcher.Constraint("Coincident", 0, 2, 1, 1),
    Sketcher.Constraint("Coincident", 1, 2, 2, 1),
    Sketcher.Constraint("Coincident", 2, 2, 3, 1),
    Sketcher.Constraint("Coincident", 3, 2, 0, 1),
    Sketcher.Constraint("Vertical", 0),
    Sketcher.Constraint("Horizontal", 1),
    Sketcher.Constraint("Vertical", 2),
    Sketcher.Constraint("Horizontal", 3),
    Sketcher.Constraint("DistanceY", -1, 1, 2, 2, Q("12 mm")),
    Sketcher.Constraint("DistanceX", 1, 1, 1, 2, Q("331.77645 mm")),
    Sketcher.Constraint("DistanceY", 0, 1, 0, 2, Q("53.126777 mm")),
    Sketcher.Constraint("DistanceX", 0, 2, -1, 1, Q("156.010911 mm")),
])
pocket2 = body.newObject("PartDesign::Pocket", "Pocket001")
pocket2.Profile = sketch7
pocket2.Length = 572
pocket2.Midplane = True

# Sketch on XY plane
sketch8 = body.newObject("Sketcher::SketchObject", "Sketch007")
sketch8.AttachmentSupport = (doc.getObject("XY_Plane"), [""])
sketch8.MapMode = "FlatFace"
sketch8.AttachmentOffset = App.Placement(Vector(0, 0, 12), App.Rotation())
sketch8.addGeometry([
    Part.Circle(Vector(81.31728, 81.31728, 0), Vector(0, 0, 1), 12),
    Part.Circle(Vector(-81.31728, 81.31728, 0), Vector(0, 0, 1), 12),
    Part.Circle(Vector(81.31728, -81.31728, 0), Vector(0, 0, 1), 12),
    Part.Circle(Vector(-81.31728, -81.31728, 0), Vector(0, 0, 1), 12),
], False)
sketch8.addConstraint([
    Sketcher.Constraint("Equal", 0, 1),
    Sketcher.Constraint("Equal", 1, 2),
    Sketcher.Constraint("Equal", 2, 3),
    Sketcher.Constraint("Symmetric", 1, 3, 2, 3, -1, 1),
    Sketcher.Constraint("Symmetric", 0, 3, 3, 3, -1, 1),
    Sketcher.Constraint("Symmetric", 0, 3, 1, 3, -2),
    Sketcher.Constraint("Diameter", 0, Q("24 mm")),
    Sketcher.Constraint("DistanceX", -1, 1, 0, 3, Q("81.31728 mm")),
    Sketcher.Constraint("DistanceY", -1, 1, 0, 3, Q("81.31728 mm")),
])
pocket3 = body.newObject("PartDesign::Pocket", "Pocket002")
pocket3.Profile = sketch8
pocket3.Length = 572
pocket3.Midplane = True

# Sketch on XY plane
sketch9 = body.newObject("Sketcher::SketchObject", "Sketch008")
sketch9.AttachmentSupport = (doc.getObject("XY_Plane"), [""])
sketch9.MapMode = "FlatFace"
sketch9.AttachmentOffset = App.Placement(Vector(0, 0, 12), App.Rotation())
sketch9.addGeometry([
    Part.LineSegment(Vector(-65.707736, 94.763238, 0), Vector(-61.720728, 92.431479, 0)),  # 0
    Part.LineSegment(Vector(-61.720728, 92.431479, 0), Vector(-57.707862, 94.71845, 0)),  # 1
    Part.LineSegment(Vector(-57.707862, 94.71845, 0), Vector(-57.682003, 99.33718, 0)),  # 2
    Part.LineSegment(Vector(-57.682003, 99.33718, 0), Vector(-61.669011, 101.668939, 0)),  # 3
    Part.LineSegment(Vector(-61.669011, 101.668939, 0), Vector(-65.681878, 99.381968, 0)),  # 4
    Part.LineSegment(Vector(-65.681878, 99.381968, 0), Vector(-65.707736, 94.763238, 0)),  # 5
    Part.LineSegment(Vector(-101.668939, -61.669011, 0), Vector(-99.381968, -65.681878, 0)),  # 6
    Part.LineSegment(Vector(-99.381968, -65.681878, 0), Vector(-94.763238, -65.707736, 0)),  # 7
    Part.LineSegment(Vector(-94.763238, -65.707736, 0), Vector(-92.431479, -61.720728, 0)),  # 8
    Part.LineSegment(Vector(-92.431479, -61.720728, 0), Vector(-94.71845, -57.707862, 0)),  # 9
    Part.LineSegment(Vector(-94.71845, -57.707862, 0), Vector(-99.33718, -57.682003, 0)),  # 10
    Part.LineSegment(Vector(-99.33718, -57.682003, 0), Vector(-101.668939, -61.669011, 0)),  # 11
    Part.LineSegment(Vector(-57.07614, -97.076067, 0), Vector(-59.363111, -93.063201, 0)),  # 12
    Part.LineSegment(Vector(-59.363111, -93.063201, 0), Vector(-63.98184, -93.037342, 0)),  # 13
    Part.LineSegment(Vector(-63.98184, -93.037342, 0), Vector(-66.3136, -97.02435, 0)),  # 14
    Part.LineSegment(Vector(-66.3136, -97.02435, 0), Vector(-64.026629, -101.037217, 0)),  # 15
    Part.LineSegment(Vector(-64.026629, -101.037217, 0), Vector(-59.407899, -101.063075, 0)),  # 16
    Part.LineSegment(Vector(-59.407899, -101.063075, 0), Vector(-57.07614, -97.076067, 0)),  # 17
    Part.LineSegment(Vector(-101.037217, 64.026629, 0), Vector(-101.063075, 59.407899, 0)),  # 18
    Part.LineSegment(Vector(-101.063075, 59.407899, 0), Vector(-97.076067, 57.07614, 0)),  # 19
    Part.LineSegment(Vector(-97.076067, 57.07614, 0), Vector(-93.063201, 59.363111, 0)),  # 20
    Part.LineSegment(Vector(-93.063201, 59.363111, 0), Vector(-93.037342, 63.98184, 0)),  # 21
    Part.LineSegment(Vector(-93.037342, 63.98184, 0), Vector(-97.02435, 66.3136, 0)),  # 22
    Part.LineSegment(Vector(-97.02435, 66.3136, 0), Vector(-101.037217, 64.026629, 0)),  # 23
    Part.LineSegment(Vector(94.763238, 65.707736, 0), Vector(92.431479, 61.720728, 0)),  # 24
    Part.LineSegment(Vector(92.431479, 61.720728, 0), Vector(94.71845, 57.707862, 0)),  # 25
    Part.LineSegment(Vector(94.71845, 57.707862, 0), Vector(99.33718, 57.682003, 0)),  # 26
    Part.LineSegment(Vector(99.33718, 57.682003, 0), Vector(101.668939, 61.669011, 0)),  # 27
    Part.LineSegment(Vector(101.668939, 61.669011, 0), Vector(99.381968, 65.681878, 0)),  # 28
    Part.LineSegment(Vector(99.381968, 65.681878, 0), Vector(94.763238, 65.707736, 0)),  # 29
    Part.LineSegment(Vector(64.026629, 101.037217, 0), Vector(59.407899, 101.063075, 0)),  # 30
    Part.LineSegment(Vector(59.407899, 101.063075, 0), Vector(57.07614, 97.076067, 0)),  # 31
    Part.LineSegment(Vector(57.07614, 97.076067, 0), Vector(59.363111, 93.063201, 0)),  # 32
    Part.LineSegment(Vector(59.363111, 93.063201, 0), Vector(63.98184, 93.037342, 0)),  # 33
    Part.LineSegment(Vector(63.98184, 93.037342, 0), Vector(66.3136, 97.02435, 0)),  # 34
    Part.LineSegment(Vector(66.3136, 97.02435, 0), Vector(64.026629, 101.037217, 0)),  # 35
    Part.LineSegment(Vector(65.707736, -94.763238, 0), Vector(61.720728, -92.431479, 0)),  # 36
    Part.LineSegment(Vector(61.720728, -92.431479, 0), Vector(57.707862, -94.71845, 0)),  # 37
    Part.LineSegment(Vector(57.707862, -94.71845, 0), Vector(57.682003, -99.33718, 0)),  # 38
    Part.LineSegment(Vector(57.682003, -99.33718, 0), Vector(61.669011, -101.668939, 0)),  # 39
    Part.LineSegment(Vector(61.669011, -101.668939, 0), Vector(65.681878, -99.381968, 0)),  # 40
    Part.LineSegment(Vector(65.681878, -99.381968, 0), Vector(65.707736, -94.763238, 0)),  # 41
    Part.LineSegment(Vector(101.037217, -64.026629, 0), Vector(101.063075, -59.407899, 0)),  # 42
    Part.LineSegment(Vector(101.063075, -59.407899, 0), Vector(97.076067, -57.07614, 0)),  # 43
    Part.LineSegment(Vector(97.076067, -57.07614, 0), Vector(93.063201, -59.363111, 0)),  # 44
    Part.LineSegment(Vector(93.063201, -59.363111, 0), Vector(93.037342, -63.98184, 0)),  # 45
    Part.LineSegment(Vector(93.037342, -63.98184, 0), Vector(97.02435, -66.3136, 0)),  # 46
    Part.LineSegment(Vector(97.02435, -66.3136, 0), Vector(101.037217, -64.026629, 0)),  # 47
], False)
sketch9.addConstraint([
    Sketcher.Constraint("Coincident", 0, 2, 1, 1),
    Sketcher.Constraint("Coincident", 1, 2, 2, 1),
    Sketcher.Constraint("Coincident", 2, 2, 3, 1),
    Sketcher.Constraint("Coincident", 3, 2, 4, 1),
    Sketcher.Constraint("Coincident", 4, 2, 5, 1),
    Sketcher.Constraint("Coincident", 5, 2, 0, 1),
    Sketcher.Constraint("Coincident", 6, 2, 7, 1),
    Sketcher.Constraint("Coincident", 7, 2, 8, 1),
    Sketcher.Constraint("Coincident", 8, 2, 9, 1),
    Sketcher.Constraint("Coincident", 9, 2, 10, 1),
    Sketcher.Constraint("Coincident", 10, 2, 11, 1),
    Sketcher.Constraint("Coincident", 11, 2, 6, 1),
    Sketcher.Constraint("Coincident", 12, 2, 13, 1),
    Sketcher.Constraint("Coincident", 13, 2, 14, 1),
    Sketcher.Constraint("Coincident", 14, 2, 15, 1),
    Sketcher.Constraint("Coincident", 15, 2, 16, 1),
    Sketcher.Constraint("Coincident", 16, 2, 17, 1),
    Sketcher.Constraint("Coincident", 17, 2, 12, 1),
    Sketcher.Constraint("Coincident", 18, 2, 19, 1),
    Sketcher.Constraint("Coincident", 19, 2, 20, 1),
    Sketcher.Constraint("Coincident", 20, 2, 21, 1),
    Sketcher.Constraint("Coincident", 21, 2, 22, 1),
    Sketcher.Constraint("Coincident", 22, 2, 23, 1),
    Sketcher.Constraint("Coincident", 23, 2, 18, 1),
    Sketcher.Constraint("Coincident", 24, 2, 25, 1),
    Sketcher.Constraint("Coincident", 25, 2, 26, 1),
    Sketcher.Constraint("Coincident", 26, 2, 27, 1),
    Sketcher.Constraint("Coincident", 27, 2, 28, 1),
    Sketcher.Constraint("Coincident", 28, 2, 29, 1),
    Sketcher.Constraint("Coincident", 29, 2, 24, 1),
    Sketcher.Constraint("Coincident", 30, 2, 31, 1),
    Sketcher.Constraint("Coincident", 31, 2, 32, 1),
    Sketcher.Constraint("Coincident", 32, 2, 33, 1),
    Sketcher.Constraint("Coincident", 33, 2, 34, 1),
    Sketcher.Constraint("Coincident", 34, 2, 35, 1),
    Sketcher.Constraint("Coincident", 35, 2, 30, 1),
    Sketcher.Constraint("Coincident", 36, 2, 37, 1),
    Sketcher.Constraint("Coincident", 37, 2, 38, 1),
    Sketcher.Constraint("Coincident", 38, 2, 39, 1),
    Sketcher.Constraint("Coincident", 39, 2, 40, 1),
    Sketcher.Constraint("Coincident", 40, 2, 41, 1),
    Sketcher.Constraint("Coincident", 41, 2, 36, 1),
    Sketcher.Constraint("Coincident", 42, 2, 43, 1),
    Sketcher.Constraint("Coincident", 43, 2, 44, 1),
    Sketcher.Constraint("Coincident", 44, 2, 45, 1),
    Sketcher.Constraint("Coincident", 45, 2, 46, 1),
    Sketcher.Constraint("Coincident", 46, 2, 47, 1),
    Sketcher.Constraint("Coincident", 47, 2, 42, 1),
    Sketcher.Constraint("Symmetric", 8, 2, 24, 2, -1, 1),
    Sketcher.Constraint("Symmetric", 9, 2, 25, 2, -1, 1),
    Sketcher.Constraint("Symmetric", 10, 2, 26, 2, -1, 1),
    Sketcher.Constraint("Symmetric", 11, 2, 27, 2, -1, 1),
    Sketcher.Constraint("Symmetric", 6, 2, 28, 2, -1, 1),
    Sketcher.Constraint("Symmetric", 7, 2, 29, 2, -1, 1),
    Sketcher.Constraint("Symmetric", 16, 2, 30, 2, -1, 1),
    Sketcher.Constraint("Symmetric", 17, 2, 31, 2, -1, 1),
    Sketcher.Constraint("Symmetric", 12, 2, 32, 2, -1, 1),
    Sketcher.Constraint("Symmetric", 13, 2, 33, 2, -1, 1),
    Sketcher.Constraint("Symmetric", 14, 2, 34, 2, -1, 1),
    Sketcher.Constraint("Symmetric", 15, 2, 35, 2, -1, 1),
    Sketcher.Constraint("Symmetric", 0, 2, 36, 2, -1, 1),
    Sketcher.Constraint("Symmetric", 1, 2, 37, 2, -1, 1),
    Sketcher.Constraint("Symmetric", 2, 2, 38, 2, -1, 1),
    Sketcher.Constraint("Symmetric", 3, 2, 39, 2, -1, 1),
    Sketcher.Constraint("Symmetric", 4, 2, 40, 2, -1, 1),
    Sketcher.Constraint("Symmetric", 5, 2, 41, 2, -1, 1),
    Sketcher.Constraint("Symmetric", 18, 2, 42, 2, -1, 1),
    Sketcher.Constraint("Symmetric", 19, 2, 43, 2, -1, 1),
    Sketcher.Constraint("Symmetric", 20, 2, 44, 2, -1, 1),
    Sketcher.Constraint("Symmetric", 21, 2, 45, 2, -1, 1),
    Sketcher.Constraint("Symmetric", 22, 2, 46, 2, -1, 1),
    Sketcher.Constraint("Symmetric", 23, 2, 47, 2, -1, 1),
    Sketcher.Constraint("Parallel", 0, 3),
    Sketcher.Constraint("Parallel", 1, 4),
    Sketcher.Constraint("Parallel", 2, 5),
    Sketcher.Constraint("Perpendicular", 4, 6),
    Sketcher.Constraint("Perpendicular", 5, 7),
    Sketcher.Constraint("Perpendicular", 3, 8),
    Sketcher.Constraint("Parallel", 6, 9),
    Sketcher.Constraint("Parallel", 7, 10),
    Sketcher.Constraint("Parallel", 8, 11),
    Sketcher.Constraint("Parallel", 9, 12),
    Sketcher.Constraint("Parallel", 10, 13),
    Sketcher.Constraint("Parallel", 11, 14),
    Sketcher.Constraint("Parallel", 12, 15),
    Sketcher.Constraint("Parallel", 13, 16),
    Sketcher.Constraint("Parallel", 14, 17),
    Sketcher.Constraint("Perpendicular", 16, 18),
    Sketcher.Constraint("Perpendicular", 17, 19),
    Sketcher.Constraint("Perpendicular", 15, 20),
    Sketcher.Constraint("Parallel", 18, 21),
    Sketcher.Constraint("Parallel", 19, 22),
    Sketcher.Constraint("Parallel", 20, 23),
    Sketcher.Constraint("Equal", 0, 1),
    Sketcher.Constraint("Equal", 1, 2),
    Sketcher.Constraint("Equal", 2, 3),
    Sketcher.Constraint("Equal", 5, 6),
    Sketcher.Constraint("Equal", 6, 7),
    Sketcher.Constraint("Equal", 7, 8),
    Sketcher.Constraint("Equal", 8, 9),
    Sketcher.Constraint("Equal", 11, 12),
    Sketcher.Constraint("Equal", 12, 13),
    Sketcher.Constraint("Equal", 13, 14),
    Sketcher.Constraint("Equal", 14, 15),
    Sketcher.Constraint("Equal", 17, 18),
    Sketcher.Constraint("Equal", 18, 19),
    Sketcher.Constraint("Equal", 19, 20),
    Sketcher.Constraint("Equal", 20, 21),
    Sketcher.Constraint("DistanceX", 17, 2, 37, 2, Q("114.784002 mm")),
    Sketcher.Constraint("DistanceY", 12, 2, -1, 1, Q("93.063201 mm")),
    Sketcher.Constraint("DistanceX", 14, 2, -1, 1, Q("66.3136 mm")),
    Sketcher.Constraint("DistanceX", 16, 2, -1, 1, Q("59.407899 mm")),
    Sketcher.Constraint("DistanceY", -1, 1, 18, 2, Q("59.407899 mm")),
    Sketcher.Constraint("DistanceX", 20, 2, -1, 1, Q("93.063201 mm")),
    Sketcher.Constraint("DistanceX", 7, 2, 5, 2, Q("29.055502 mm")),
    Sketcher.Constraint("DistanceY", 9, 2, 5, 2, Q("152.4711 mm")),
    Sketcher.Constraint("DistanceY", 19, 2, 5, 2, Q("37.687098 mm")),
    Sketcher.Constraint("DistanceX", 1, 2, 27, 2, Q("159.3768 mm")),
    Sketcher.Constraint("DistanceY", 40, 2, 17, 2, Q("2.3059 mm")),
    Sketcher.Constraint("DistanceX", 3, 2, -1, 1, Q("61.669011 mm")),
])
pocket4 = body.newObject("PartDesign::Pocket", "Pocket003")
pocket4.Profile = sketch9
pocket4.Length = 4

# Sketch on XY plane
sketch10 = body.newObject("Sketcher::SketchObject", "Sketch009")
sketch10.AttachmentSupport = (doc.getObject("XY_Plane"), [""])
sketch10.MapMode = "FlatFace"
sketch10.addGeometry([
    Part.Circle(Vector(-97.050209, -61.69487, 0), Vector(0, 0, 1), 2),  # 0
    Part.Circle(Vector(-61.69487, -97.050209, 0), Vector(0, 0, 1), 2),  # 1
    Part.Circle(Vector(-61.69487, 97.050209, 0), Vector(0, 0, 1), 2),  # 2
    Part.Circle(Vector(-97.050209, 61.69487, 0), Vector(0, 0, 1), 2),  # 3
    Part.Circle(Vector(97.050209, 61.69487, 0), Vector(0, 0, 1), 2),  # 4
    Part.Circle(Vector(61.69487, 97.050209, 0), Vector(0, 0, 1), 2),  # 5
    Part.Circle(Vector(61.69487, -97.050209, 0), Vector(0, 0, 1), 2),  # 6
    Part.Circle(Vector(97.050209, -61.69487, 0), Vector(0, 0, 1), 2),  # 7
], False)
sketch10.addConstraint([
    Sketcher.Constraint("Equal", 0, 1),
    Sketcher.Constraint("Equal", 1, 2),
    Sketcher.Constraint("Equal", 2, 3),
    Sketcher.Constraint("Equal", 3, 4),
    Sketcher.Constraint("Equal", 4, 5),
    Sketcher.Constraint("Equal", 5, 6),
    Sketcher.Constraint("Equal", 6, 7),
    Sketcher.Constraint("Symmetric", 0, 3, 4, 3, -1, 1),
    Sketcher.Constraint("Symmetric", 1, 3, 5, 3, -1, 1),
    Sketcher.Constraint("Symmetric", 2, 3, 6, 3, -1, 1),
    Sketcher.Constraint("Symmetric", 3, 3, 7, 3, -1, 1),
    Sketcher.Constraint("Symmetric", 3, 3, 4, 3, -2),
    Sketcher.Constraint("Symmetric", 2, 3, 5, 3, -2),
    Sketcher.Constraint("Diameter", 0, Q("4 mm")),
    Sketcher.Constraint("DistanceX", 0, 3, -1, 1, Q("97.050209 mm")),
    Sketcher.Constraint("DistanceY", 0, 3, -1, 1, Q("61.69487 mm")),
    Sketcher.Constraint("DistanceX", 1, 3, -1, 1, Q("61.69487 mm")),
    Sketcher.Constraint("DistanceY", 1, 3, -1, 1, Q("97.050209 mm")),
])
pocket5 = body.newObject("PartDesign::Pocket", "Pocket004")
pocket5.Profile = sketch10
pocket5.Length = 10
pocket5.Reversed = True

doc.recompute()
